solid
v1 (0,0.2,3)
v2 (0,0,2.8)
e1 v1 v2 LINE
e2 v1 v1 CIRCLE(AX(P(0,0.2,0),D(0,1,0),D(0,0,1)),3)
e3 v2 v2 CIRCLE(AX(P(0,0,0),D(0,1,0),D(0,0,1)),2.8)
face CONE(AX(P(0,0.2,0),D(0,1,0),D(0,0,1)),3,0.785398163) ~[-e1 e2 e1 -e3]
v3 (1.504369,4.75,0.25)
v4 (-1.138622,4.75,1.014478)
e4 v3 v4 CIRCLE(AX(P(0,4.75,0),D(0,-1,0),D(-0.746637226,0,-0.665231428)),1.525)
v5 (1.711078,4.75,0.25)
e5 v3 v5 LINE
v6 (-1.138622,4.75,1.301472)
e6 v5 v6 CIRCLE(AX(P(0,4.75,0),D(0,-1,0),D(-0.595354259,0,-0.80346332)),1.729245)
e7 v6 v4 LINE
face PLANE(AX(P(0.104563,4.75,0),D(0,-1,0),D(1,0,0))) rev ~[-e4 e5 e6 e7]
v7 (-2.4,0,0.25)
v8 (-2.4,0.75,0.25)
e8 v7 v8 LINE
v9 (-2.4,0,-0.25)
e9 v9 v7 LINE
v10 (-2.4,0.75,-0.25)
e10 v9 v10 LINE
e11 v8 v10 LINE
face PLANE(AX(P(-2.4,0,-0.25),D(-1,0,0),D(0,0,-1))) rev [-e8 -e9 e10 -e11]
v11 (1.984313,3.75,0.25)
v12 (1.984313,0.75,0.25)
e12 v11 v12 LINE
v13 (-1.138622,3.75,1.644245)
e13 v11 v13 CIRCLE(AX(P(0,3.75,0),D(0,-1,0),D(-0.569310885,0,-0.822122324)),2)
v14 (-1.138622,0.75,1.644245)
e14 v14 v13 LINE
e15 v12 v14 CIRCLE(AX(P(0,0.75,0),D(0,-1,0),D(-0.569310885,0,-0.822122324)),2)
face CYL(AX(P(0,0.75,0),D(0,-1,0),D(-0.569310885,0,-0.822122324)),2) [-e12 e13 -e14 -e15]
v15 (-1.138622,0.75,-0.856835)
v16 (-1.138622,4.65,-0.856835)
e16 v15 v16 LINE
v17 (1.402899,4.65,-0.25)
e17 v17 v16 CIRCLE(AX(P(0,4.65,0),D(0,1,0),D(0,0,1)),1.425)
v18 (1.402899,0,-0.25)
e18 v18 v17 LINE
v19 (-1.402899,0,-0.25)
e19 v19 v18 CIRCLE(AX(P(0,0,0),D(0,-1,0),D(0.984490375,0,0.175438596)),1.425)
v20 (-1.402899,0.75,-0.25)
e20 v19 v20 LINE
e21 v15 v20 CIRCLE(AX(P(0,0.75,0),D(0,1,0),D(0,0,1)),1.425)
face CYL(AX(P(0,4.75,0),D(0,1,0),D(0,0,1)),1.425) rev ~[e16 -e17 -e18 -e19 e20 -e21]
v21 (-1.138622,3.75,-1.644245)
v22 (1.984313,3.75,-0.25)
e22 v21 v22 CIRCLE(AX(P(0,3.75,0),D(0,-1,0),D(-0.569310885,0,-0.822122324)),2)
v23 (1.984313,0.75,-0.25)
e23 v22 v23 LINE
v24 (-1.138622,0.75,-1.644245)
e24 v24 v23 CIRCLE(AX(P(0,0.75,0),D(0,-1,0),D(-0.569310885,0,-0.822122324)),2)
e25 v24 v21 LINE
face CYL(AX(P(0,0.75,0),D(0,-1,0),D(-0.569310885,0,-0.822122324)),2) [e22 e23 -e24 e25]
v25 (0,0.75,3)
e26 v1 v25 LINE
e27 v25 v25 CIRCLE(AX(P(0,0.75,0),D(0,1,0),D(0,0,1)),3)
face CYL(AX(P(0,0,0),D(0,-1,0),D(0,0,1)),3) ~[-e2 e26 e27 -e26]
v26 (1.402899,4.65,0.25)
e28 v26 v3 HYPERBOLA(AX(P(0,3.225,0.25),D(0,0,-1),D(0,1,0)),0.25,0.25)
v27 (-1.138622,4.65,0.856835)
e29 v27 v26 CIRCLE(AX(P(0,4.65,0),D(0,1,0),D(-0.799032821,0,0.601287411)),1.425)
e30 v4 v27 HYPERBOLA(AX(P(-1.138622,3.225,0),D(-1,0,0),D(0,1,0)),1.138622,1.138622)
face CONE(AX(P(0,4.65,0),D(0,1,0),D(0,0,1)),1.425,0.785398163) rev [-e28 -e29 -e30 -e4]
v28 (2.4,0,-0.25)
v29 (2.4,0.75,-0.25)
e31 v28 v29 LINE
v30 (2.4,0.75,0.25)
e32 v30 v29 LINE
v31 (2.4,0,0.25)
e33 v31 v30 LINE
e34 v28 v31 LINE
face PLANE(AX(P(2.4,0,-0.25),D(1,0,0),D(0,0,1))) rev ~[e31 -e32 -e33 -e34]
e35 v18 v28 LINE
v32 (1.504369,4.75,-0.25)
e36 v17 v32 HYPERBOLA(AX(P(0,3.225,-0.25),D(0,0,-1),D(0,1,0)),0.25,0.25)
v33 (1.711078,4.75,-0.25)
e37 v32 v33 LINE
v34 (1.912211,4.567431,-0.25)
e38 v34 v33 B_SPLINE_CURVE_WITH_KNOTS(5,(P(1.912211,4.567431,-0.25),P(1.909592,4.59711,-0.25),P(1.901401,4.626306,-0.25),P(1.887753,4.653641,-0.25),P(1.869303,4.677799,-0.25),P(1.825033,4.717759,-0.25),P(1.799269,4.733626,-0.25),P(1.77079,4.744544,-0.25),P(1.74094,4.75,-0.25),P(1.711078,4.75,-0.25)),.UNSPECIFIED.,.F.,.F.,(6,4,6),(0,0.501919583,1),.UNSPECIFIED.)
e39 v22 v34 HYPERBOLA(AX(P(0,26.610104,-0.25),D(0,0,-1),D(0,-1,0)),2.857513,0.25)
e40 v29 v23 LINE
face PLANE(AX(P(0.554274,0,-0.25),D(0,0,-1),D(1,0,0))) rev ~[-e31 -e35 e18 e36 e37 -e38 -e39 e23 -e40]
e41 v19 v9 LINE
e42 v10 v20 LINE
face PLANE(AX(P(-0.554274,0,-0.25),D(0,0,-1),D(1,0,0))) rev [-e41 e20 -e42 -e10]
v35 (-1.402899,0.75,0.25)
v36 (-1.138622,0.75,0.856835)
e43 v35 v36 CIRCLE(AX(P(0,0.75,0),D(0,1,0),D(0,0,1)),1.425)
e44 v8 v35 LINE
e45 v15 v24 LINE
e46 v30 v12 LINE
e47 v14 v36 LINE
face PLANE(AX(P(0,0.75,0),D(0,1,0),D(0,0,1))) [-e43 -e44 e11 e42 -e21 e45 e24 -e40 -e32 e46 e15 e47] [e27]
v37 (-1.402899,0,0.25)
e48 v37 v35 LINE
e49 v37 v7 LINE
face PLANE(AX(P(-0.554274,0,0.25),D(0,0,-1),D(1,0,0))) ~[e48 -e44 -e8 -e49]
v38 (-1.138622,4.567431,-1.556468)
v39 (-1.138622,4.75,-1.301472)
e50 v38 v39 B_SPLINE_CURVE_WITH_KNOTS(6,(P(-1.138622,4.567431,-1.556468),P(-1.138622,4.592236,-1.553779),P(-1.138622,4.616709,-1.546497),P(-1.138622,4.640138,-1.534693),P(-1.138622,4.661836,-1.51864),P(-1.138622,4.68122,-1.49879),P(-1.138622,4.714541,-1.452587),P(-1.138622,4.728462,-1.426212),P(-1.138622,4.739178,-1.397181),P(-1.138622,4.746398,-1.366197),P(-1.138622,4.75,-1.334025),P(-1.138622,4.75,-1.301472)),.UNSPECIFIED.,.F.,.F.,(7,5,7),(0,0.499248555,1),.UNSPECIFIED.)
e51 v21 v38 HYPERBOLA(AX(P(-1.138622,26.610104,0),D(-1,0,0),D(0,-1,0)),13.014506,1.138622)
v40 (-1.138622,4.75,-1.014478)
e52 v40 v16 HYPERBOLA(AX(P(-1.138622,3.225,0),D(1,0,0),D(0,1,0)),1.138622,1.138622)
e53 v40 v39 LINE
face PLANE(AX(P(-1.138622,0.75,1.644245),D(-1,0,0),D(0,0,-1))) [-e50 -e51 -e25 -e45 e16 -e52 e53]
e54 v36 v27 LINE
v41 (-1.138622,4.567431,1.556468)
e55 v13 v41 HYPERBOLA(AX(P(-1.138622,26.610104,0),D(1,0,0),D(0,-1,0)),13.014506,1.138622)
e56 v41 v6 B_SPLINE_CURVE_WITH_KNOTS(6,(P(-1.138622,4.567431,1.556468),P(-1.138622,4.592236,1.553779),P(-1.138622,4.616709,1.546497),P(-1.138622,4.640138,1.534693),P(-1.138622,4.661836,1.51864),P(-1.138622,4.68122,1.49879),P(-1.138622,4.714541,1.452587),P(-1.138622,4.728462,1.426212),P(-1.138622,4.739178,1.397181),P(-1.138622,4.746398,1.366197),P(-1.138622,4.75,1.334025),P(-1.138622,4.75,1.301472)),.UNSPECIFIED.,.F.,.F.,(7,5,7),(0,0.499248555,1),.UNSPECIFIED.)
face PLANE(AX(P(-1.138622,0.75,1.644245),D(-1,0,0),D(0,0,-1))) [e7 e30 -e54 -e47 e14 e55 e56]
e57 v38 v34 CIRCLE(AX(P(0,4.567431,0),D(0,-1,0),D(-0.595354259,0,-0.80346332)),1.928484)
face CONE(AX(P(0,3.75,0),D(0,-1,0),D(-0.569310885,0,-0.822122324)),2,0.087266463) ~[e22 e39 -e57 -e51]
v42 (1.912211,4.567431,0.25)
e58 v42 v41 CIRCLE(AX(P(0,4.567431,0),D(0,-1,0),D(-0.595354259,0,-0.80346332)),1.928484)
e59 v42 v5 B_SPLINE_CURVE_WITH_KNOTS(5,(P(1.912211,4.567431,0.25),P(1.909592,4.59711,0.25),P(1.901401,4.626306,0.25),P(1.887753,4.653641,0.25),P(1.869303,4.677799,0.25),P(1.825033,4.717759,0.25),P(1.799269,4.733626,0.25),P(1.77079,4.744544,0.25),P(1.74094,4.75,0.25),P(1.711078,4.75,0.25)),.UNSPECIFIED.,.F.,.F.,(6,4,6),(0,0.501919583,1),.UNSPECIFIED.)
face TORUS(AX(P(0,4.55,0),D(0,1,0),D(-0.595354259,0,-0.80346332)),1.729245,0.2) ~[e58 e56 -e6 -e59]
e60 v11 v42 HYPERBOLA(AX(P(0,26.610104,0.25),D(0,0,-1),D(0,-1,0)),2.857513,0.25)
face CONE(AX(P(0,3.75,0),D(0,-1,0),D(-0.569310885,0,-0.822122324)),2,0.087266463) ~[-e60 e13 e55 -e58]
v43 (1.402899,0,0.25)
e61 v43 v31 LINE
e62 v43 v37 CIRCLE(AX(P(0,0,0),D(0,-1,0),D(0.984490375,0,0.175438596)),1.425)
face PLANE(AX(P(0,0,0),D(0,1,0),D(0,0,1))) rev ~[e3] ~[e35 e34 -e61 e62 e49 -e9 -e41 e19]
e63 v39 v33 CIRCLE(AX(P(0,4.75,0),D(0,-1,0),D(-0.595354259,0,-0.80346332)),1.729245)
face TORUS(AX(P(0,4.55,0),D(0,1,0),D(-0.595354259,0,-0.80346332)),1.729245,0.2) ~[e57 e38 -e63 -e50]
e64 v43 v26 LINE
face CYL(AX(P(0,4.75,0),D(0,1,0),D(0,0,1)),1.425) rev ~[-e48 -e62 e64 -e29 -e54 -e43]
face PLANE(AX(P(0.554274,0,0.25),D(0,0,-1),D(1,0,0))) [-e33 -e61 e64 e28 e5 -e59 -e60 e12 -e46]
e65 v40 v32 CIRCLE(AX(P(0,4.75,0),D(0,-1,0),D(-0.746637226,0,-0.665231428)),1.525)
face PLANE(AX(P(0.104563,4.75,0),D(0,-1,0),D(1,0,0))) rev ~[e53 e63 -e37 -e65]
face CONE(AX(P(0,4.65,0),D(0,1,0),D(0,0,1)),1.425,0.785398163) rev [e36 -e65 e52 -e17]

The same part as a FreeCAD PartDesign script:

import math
import FreeCAD as App
import Part
import Sketcher

V = App.Vector


def edges_at(feature, points):
    """Names of the edges that pass closest to the given points."""
    edges = feature.Shape.Edges
    near = lambda p: min(range(len(edges)), key=lambda i: edges[i].distToShape(Part.Vertex(*p))[0])
    return sorted({f"Edge{near(p) + 1}" for p in points})

doc = App.newDocument("Part")
body = doc.addObject("PartDesign::Body", "Body")

sketch1 = body.newObject("Sketcher::SketchObject", "Sketch")
sketch1.AttachmentSupport = (doc.getObject("XZ_Plane"), [""])
sketch1.MapMode = "FlatFace"
sketch1.addGeometry(Part.Circle(V(0, 0, 0), V(0, 0, 1), 3), False)
sketch1.addConstraint(Sketcher.Constraint("Coincident", 0, 3, -1, 1))
sketch1.addConstraint(Sketcher.Constraint("Diameter", 0, 6.0))
pad1 = body.newObject("PartDesign::Pad", "Pad")
pad1.Profile = sketch1
pad1.Length = 0.75
pad1.Reversed = True

sketch2 = body.newObject("Sketcher::SketchObject", "Sketch001")
sketch2.AttachmentSupport = (doc.getObject("XZ_Plane"), [""])
sketch2.MapMode = "FlatFace"
sketch2.AttachmentOffset = App.Placement(V(0, 0, -0.75), App.Rotation())
sketch2.addGeometry(Part.LineSegment(V(-1.1, -1.6, 0), V(-1.1, 1.6, 0)), False)
sketch2.addGeometry(Part.ArcOfCircle(Part.Circle(V(0, 0, 0), V(0, 0, 1), 2), math.radians(-125), math.radians(125)), False)
sketch2.addConstraint(Sketcher.Constraint("Coincident", 0, 1, 1, 1))
sketch2.addConstraint(Sketcher.Constraint("Coincident", 1, 2, 0, 2))
sketch2.addConstraint(Sketcher.Constraint("Vertical", 0))
sketch2.addConstraint(Sketcher.Constraint("Coincident", 1, 3, -1, 1))
sketch2.addConstraint(Sketcher.Constraint("Radius", 1, 2.0))
sketch2.addConstraint(Sketcher.Constraint("DistanceY", 0, 1, 0, 2, 3.288489))
pad2 = body.newObject("PartDesign::Pad", "Pad001")
pad2.Profile = sketch2
pad2.Length = 4
pad2.Reversed = True

sketch3 = body.newObject("Sketcher::SketchObject", "Sketch002")
sketch3.AttachmentSupport = (doc.getObject("XZ_Plane"), [""])
sketch3.MapMode = "FlatFace"
sketch3.AttachmentOffset = App.Placement(V(0, 0, -4.75), App.Rotation())
sketch3.addGeometry(Part.Circle(V(0, 0, 0), V(0, 0, 1), 1.4), False)
sketch3.addConstraint(Sketcher.Constraint("Coincident", 0, 3, -1, 1))
sketch3.addConstraint(Sketcher.Constraint("Diameter", 0, 2.85))
pocket1 = body.newObject("PartDesign::Pocket", "Pocket")
pocket1.Profile = sketch3
pocket1.Type = "ThroughAll"
pocket1.Reversed = True
doc.recompute()

chamfer = body.newObject("PartDesign::Chamfer", "Chamfer")
chamfer.Base = (pocket1, edges_at(pocket1, [(0, 0, -3)]))
chamfer.Size = 0.2
doc.recompute()

chamfer2 = body.newObject("PartDesign::Chamfer", "Chamfer001")
chamfer2.Base = (chamfer, edges_at(chamfer, [(2, 4.75, 0)]))
chamfer2.ChamferType = "Two distances"
chamfer2.Size = 1
chamfer2.Size2 = 0.087489
doc.recompute()

chamfer3 = body.newObject("PartDesign::Chamfer", "Chamfer002")
chamfer3.Base = (chamfer2, edges_at(chamfer2, [(1.275, 4.75, -0.636)]))
chamfer3.Size = 0.1
doc.recompute()

fillet = body.newObject("PartDesign::Fillet", "Fillet")
fillet.Base = (chamfer3, edges_at(chamfer3, [(1.913, 4.75, 0)]))
fillet.Radius = 0.2

sketch4 = body.newObject("Sketcher::SketchObject", "Sketch003")
sketch4.AttachmentSupport = (doc.getObject("XZ_Plane"), [""])
sketch4.MapMode = "FlatFace"
sketch4.addGeometry(Part.LineSegment(V(0.6, 0.2, 0), V(0.6, -0.2, 0)), False)
sketch4.addGeometry(Part.LineSegment(V(0.6, -0.2, 0), V(2.4, -0.2, 0)), False)
sketch4.addGeometry(Part.LineSegment(V(2.4, -0.2, 0), V(2.4, 0.2, 0)), False)
sketch4.addGeometry(Part.LineSegment(V(2.4, 0.2, 0), V(0.6, 0.2, 0)), False)
sketch4.addConstraint(Sketcher.Constraint("Coincident", 0, 2, 1, 1))
sketch4.addConstraint(Sketcher.Constraint("Coincident", 1, 2, 2, 1))
sketch4.addConstraint(Sketcher.Constraint("Coincident", 2, 2, 3, 1))
sketch4.addConstraint(Sketcher.Constraint("Coincident", 3, 2, 0, 1))
sketch4.addConstraint(Sketcher.Constraint("Vertical", 0))
sketch4.addConstraint(Sketcher.Constraint("Horizontal", 1))
sketch4.addConstraint(Sketcher.Constraint("Vertical", 2))
sketch4.addConstraint(Sketcher.Constraint("Horizontal", 3))
sketch4.addConstraint(Sketcher.Constraint("DistanceY", 0, 2, 0, 1, 0.5))
sketch4.addConstraint(Sketcher.Constraint("DistanceX", -1, 1, 1, 2, 2.4))
sketch4.addConstraint(Sketcher.Constraint("DistanceY", 0, 2, -1, 1, 0.25))
sketch4.addConstraint(Sketcher.Constraint("DistanceX", 1, 1, 1, 2, 1.845726))
pocket2 = body.newObject("PartDesign::Pocket", "Pocket001")
pocket2.Profile = sketch4
pocket2.Type = "ThroughAll"
doc.recompute()

mirrored = body.newObject("PartDesign::Mirrored", "Mirrored")
mirrored.Originals = [pocket2]
mirrored.MirrorPlane = (doc.getObject("YZ_Plane"), [""])
body.Tip = mirrored

doc.recompute()
